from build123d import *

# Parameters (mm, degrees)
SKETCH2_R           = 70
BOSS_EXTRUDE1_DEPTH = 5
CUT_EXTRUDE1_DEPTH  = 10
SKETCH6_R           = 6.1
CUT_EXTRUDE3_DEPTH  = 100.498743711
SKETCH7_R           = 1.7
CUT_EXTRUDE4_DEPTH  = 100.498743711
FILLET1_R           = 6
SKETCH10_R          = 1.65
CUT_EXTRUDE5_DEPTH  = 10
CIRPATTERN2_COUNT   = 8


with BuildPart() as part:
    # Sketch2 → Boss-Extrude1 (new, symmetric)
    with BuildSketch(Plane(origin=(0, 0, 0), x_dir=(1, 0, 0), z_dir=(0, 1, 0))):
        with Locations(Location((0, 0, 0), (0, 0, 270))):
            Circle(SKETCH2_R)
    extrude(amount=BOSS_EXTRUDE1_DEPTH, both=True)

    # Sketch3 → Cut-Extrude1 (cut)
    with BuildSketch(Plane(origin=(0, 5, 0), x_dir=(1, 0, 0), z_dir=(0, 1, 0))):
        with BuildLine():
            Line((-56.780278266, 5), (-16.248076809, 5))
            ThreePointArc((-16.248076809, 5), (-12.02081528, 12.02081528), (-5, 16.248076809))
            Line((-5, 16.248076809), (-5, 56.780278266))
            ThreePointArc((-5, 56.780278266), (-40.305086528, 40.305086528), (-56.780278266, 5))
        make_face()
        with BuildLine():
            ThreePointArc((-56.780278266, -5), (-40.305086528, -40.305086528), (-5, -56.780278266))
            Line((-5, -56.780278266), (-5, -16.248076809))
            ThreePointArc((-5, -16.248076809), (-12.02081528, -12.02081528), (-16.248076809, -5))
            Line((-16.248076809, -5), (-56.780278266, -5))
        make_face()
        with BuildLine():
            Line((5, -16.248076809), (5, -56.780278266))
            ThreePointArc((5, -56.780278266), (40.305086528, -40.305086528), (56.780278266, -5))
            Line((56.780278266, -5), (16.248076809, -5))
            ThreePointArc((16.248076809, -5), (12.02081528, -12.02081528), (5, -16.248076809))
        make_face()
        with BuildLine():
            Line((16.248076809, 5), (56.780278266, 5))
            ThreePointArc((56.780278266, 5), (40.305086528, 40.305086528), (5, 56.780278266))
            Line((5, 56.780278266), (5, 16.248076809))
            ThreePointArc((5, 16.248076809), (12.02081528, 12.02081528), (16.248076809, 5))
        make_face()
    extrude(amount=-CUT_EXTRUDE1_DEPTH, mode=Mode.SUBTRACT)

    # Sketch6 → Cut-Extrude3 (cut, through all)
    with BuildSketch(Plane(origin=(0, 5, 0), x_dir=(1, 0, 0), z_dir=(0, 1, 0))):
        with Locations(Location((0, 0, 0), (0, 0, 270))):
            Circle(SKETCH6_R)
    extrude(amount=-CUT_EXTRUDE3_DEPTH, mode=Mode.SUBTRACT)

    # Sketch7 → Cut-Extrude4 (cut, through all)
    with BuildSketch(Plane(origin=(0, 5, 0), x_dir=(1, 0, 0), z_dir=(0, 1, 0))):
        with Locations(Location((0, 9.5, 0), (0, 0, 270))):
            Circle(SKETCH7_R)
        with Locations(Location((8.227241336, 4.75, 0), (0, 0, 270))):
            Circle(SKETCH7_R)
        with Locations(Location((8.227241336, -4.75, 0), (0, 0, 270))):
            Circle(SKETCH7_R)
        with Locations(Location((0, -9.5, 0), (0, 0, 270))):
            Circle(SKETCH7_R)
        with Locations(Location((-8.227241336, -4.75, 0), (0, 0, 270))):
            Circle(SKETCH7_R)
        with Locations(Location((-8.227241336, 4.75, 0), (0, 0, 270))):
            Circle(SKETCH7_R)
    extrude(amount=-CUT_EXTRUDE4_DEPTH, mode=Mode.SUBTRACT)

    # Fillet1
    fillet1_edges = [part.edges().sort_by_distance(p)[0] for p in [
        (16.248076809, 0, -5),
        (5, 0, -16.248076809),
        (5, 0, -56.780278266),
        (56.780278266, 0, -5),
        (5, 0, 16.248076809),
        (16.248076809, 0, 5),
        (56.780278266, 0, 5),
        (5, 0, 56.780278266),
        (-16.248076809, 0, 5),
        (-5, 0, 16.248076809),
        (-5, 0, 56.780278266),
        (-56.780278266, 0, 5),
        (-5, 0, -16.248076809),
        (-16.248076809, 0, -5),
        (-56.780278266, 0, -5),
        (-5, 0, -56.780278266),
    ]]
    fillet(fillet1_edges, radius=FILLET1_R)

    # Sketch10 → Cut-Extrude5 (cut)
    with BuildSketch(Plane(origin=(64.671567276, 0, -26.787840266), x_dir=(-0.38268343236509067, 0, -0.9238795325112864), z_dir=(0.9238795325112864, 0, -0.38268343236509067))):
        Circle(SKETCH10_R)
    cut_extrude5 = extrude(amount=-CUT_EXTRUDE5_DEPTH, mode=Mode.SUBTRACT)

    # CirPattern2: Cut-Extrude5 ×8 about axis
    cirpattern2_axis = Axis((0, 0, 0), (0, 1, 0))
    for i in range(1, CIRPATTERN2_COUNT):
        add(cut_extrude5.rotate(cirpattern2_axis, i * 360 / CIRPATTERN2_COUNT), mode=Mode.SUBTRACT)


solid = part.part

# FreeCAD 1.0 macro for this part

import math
import FreeCAD as App
import Part
import Sketcher
from FreeCAD import Vector


def edges_at(feature, points):
    """Names of the edges that pass closest to the given points."""
    edges = feature.Shape.Edges
    near = lambda p: min(range(len(edges)), key=lambda i: edges[i].distToShape(Part.Vertex(*p))[0])
    return sorted({f"Edge{near(p) + 1}" for p in points})

doc = App.newDocument("Part")
body = doc.addObject("PartDesign::Body", "Body")

# Sketch on XZ plane
sketch1 = doc.addObject("Sketcher::SketchObject", "Sketch")
body.addObject(sketch1)
sketch1.AttachmentSupport = (doc.XZ_Plane, [""])
sketch1.MapMode = "FlatFace"
sketch1.addGeometry(Part.Circle(Vector(0, 0, 0), Vector(0, 0, 1), 70), False)
sketch1.addConstraint([
    Sketcher.Constraint("Coincident", 0, 3, -1, 1),
    Sketcher.Constraint("Diameter", 0, 140.0),
])
pad1 = doc.addObject("PartDesign::Pad", "Pad")
body.addObject(pad1)
pad1.Profile = sketch1
pad1.Length = 10
pad1.Midplane = True

# Sketch on XZ plane
sketch2 = doc.addObject("Sketcher::SketchObject", "Sketch001")
body.addObject(sketch2)
sketch2.AttachmentSupport = (doc.XZ_Plane, [""])
sketch2.MapMode = "FlatFace"
sketch2.AttachmentOffset = App.Placement(Vector(0, 0, -5), App.Rotation())
sketch2.addGeometry([
    Part.LineSegment(Vector(-56.780278, -5, 0), Vector(-16.248077, -5, 0)),  # 0
    Part.ArcOfCircle(Part.Circle(Vector(0, 0, 0), Vector(0, 0, 1), 17), math.radians(-162.895365), math.radians(-107.104635)),  # 1
    Part.LineSegment(Vector(-5, -16.248077, 0), Vector(-5, -56.780278, 0)),  # 2
    Part.ArcOfCircle(Part.Circle(Vector(0, 0, 0), Vector(0, 0, 1), 57), math.radians(-174.967587), math.radians(-95.032413)),  # 3
    Part.ArcOfCircle(Part.Circle(Vector(0, 0, 0), Vector(0, 0, 1), 57), math.radians(95.032413), math.radians(174.967587)),  # 4
    Part.LineSegment(Vector(-5, 56.780278, 0), Vector(-5, 16.248077, 0)),  # 5
    Part.ArcOfCircle(Part.Circle(Vector(0, 0, 0), Vector(0, 0, 1), 17), math.radians(107.104635), math.radians(162.895365)),  # 6
    Part.LineSegment(Vector(-16.248077, 5, 0), Vector(-56.780278, 5, 0)),  # 7
    Part.LineSegment(Vector(5, 16.248077, 0), Vector(5, 56.780278, 0)),  # 8
    Part.ArcOfCircle(Part.Circle(Vector(0, 0, 0), Vector(0, 0, 1), 57), math.radians(5.032413), math.radians(84.967587)),  # 9
    Part.LineSegment(Vector(56.780278, 5, 0), Vector(16.248077, 5, 0)),  # 10
    Part.ArcOfCircle(Part.Circle(Vector(0, 0, 0), Vector(0, 0, 1), 17), math.radians(17.104635), math.radians(72.895365)),  # 11
    Part.LineSegment(Vector(16.248077, -5, 0), Vector(56.780278, -5, 0)),  # 12
    Part.ArcOfCircle(Part.Circle(Vector(0, 0, 0), Vector(0, 0, 1), 57), math.radians(-84.967587), math.radians(-5.032413)),  # 13
    Part.LineSegment(Vector(5, -56.780278, 0), Vector(5, -16.248077, 0)),  # 14
    Part.ArcOfCircle(Part.Circle(Vector(0, 0, 0), Vector(0, 0, 1), 17), math.radians(-72.895365), math.radians(-17.104635)),  # 15
], False)
sketch2.addConstraint([
    Sketcher.Constraint("Coincident", 0, 2, 1, 1),
    Sketcher.Constraint("Coincident", 1, 2, 2, 1),
    Sketcher.Constraint("Coincident", 2, 2, 3, 2),
    Sketcher.Constraint("Coincident", 3, 1, 0, 1),
    Sketcher.Constraint("Coincident", 4, 1, 5, 1),
    Sketcher.Constraint("Coincident", 5, 2, 6, 1),
    Sketcher.Constraint("Coincident", 6, 2, 7, 1),
    Sketcher.Constraint("Coincident", 7, 2, 4, 2),
    Sketcher.Constraint("Coincident", 8, 2, 9, 2),
    Sketcher.Constraint("Coincident", 9, 1, 10, 1),
    Sketcher.Constraint("Coincident", 10, 2, 11, 1),
    Sketcher.Constraint("Coincident", 11, 2, 8, 1),
    Sketcher.Constraint("Coincident", 12, 2, 13, 2),
    Sketcher.Constraint("Coincident", 13, 1, 14, 1),
    Sketcher.Constraint("Coincident", 14, 2, 15, 1),
    Sketcher.Constraint("Coincident", 15, 2, 12, 1),
    Sketcher.Constraint("Horizontal", 0),
    Sketcher.Constraint("Vertical", 2),
    Sketcher.Constraint("Vertical", 5),
    Sketcher.Constraint("Horizontal", 7),
    Sketcher.Constraint("Vertical", 8),
    Sketcher.Constraint("Horizontal", 10),
    Sketcher.Constraint("Horizontal", 12),
    Sketcher.Constraint("Vertical", 14),
    Sketcher.Constraint("Coincident", 1, 3, -1, 1),
    Sketcher.Constraint("Coincident", 3, 3, -1, 1),
    Sketcher.Constraint("Coincident", 4, 3, -1, 1),
    Sketcher.Constraint("Coincident", 6, 3, -1, 1),
    Sketcher.Constraint("Coincident", 9, 3, -1, 1),
    Sketcher.Constraint("Coincident", 11, 3, -1, 1),
    Sketcher.Constraint("Coincident", 13, 3, -1, 1),
    Sketcher.Constraint("Coincident", 15, 3, -1, 1),
    Sketcher.Constraint("Equal", 3, 4),
    Sketcher.Constraint("Equal", 1, 6),
    Sketcher.Constraint("Equal", 4, 9),
    Sketcher.Constraint("Equal", 6, 11),
    Sketcher.Constraint("Equal", 9, 13),
    Sketcher.Constraint("Equal", 11, 15),
    Sketcher.Constraint("Horizontal", 4, 1, 8, 2),
    Sketcher.Constraint("Horizontal", 7, 2, 9, 1),
    Sketcher.Constraint("Horizontal", 3, 1, 12, 2),
    Sketcher.Constraint("Horizontal", 2, 2, 13, 1),
    Sketcher.Constraint("Vertical", 2, 2, 4, 1),
    Sketcher.Constraint("Vertical", 0, 2, 6, 2),
    Sketcher.Constraint("Equal", 12, 2),
    Sketcher.Constraint("Radius", 1, 17.0),
    Sketcher.Constraint("Radius", 3, 57.0),
    Sketcher.Constraint("DistanceY", 0, 2, -1, 1, 5.0),
])
pocket1 = doc.addObject("PartDesign::Pocket", "Pocket")
body.addObject(pocket1)
pocket1.Profile = sketch2
pocket1.Length = 10
pocket1.Reversed = True

# Sketch on XZ plane
sketch3 = doc.addObject("Sketcher::SketchObject", "Sketch002")
body.addObject(sketch3)
sketch3.AttachmentSupport = (doc.XZ_Plane, [""])
sketch3.MapMode = "FlatFace"
sketch3.AttachmentOffset = App.Placement(Vector(0, 0, -5), App.Rotation())
sketch3.addGeometry(Part.Circle(Vector(0, 0, 0), Vector(0, 0, 1), 6.1), False)
sketch3.addConstraint([
    Sketcher.Constraint("Coincident", 0, 3, -1, 1),
    Sketcher.Constraint("Diameter", 0, 12.2),
])
pocket2 = doc.addObject("PartDesign::Pocket", "Pocket001")
body.addObject(pocket2)
pocket2.Profile = sketch3
pocket2.Type = "ThroughAll"
pocket2.Reversed = True

# Sketch on XZ plane
sketch4 = doc.addObject("Sketcher::SketchObject", "Sketch003")
body.addObject(sketch4)
sketch4.AttachmentSupport = (doc.XZ_Plane, [""])
sketch4.MapMode = "FlatFace"
sketch4.AttachmentOffset = App.Placement(Vector(0, 0, -5), App.Rotation())
sketch4.addGeometry([
    Part.Circle(Vector(0, -9.5, 0), Vector(0, 0, 1), 1.7),  # 0
    Part.Circle(Vector(8.227241, -4.75, 0), Vector(0, 0, 1), 1.7),  # 1
    Part.Circle(Vector(8.227241, 4.75, 0), Vector(0, 0, 1), 1.7),  # 2
    Part.Circle(Vector(0, 9.5, 0), Vector(0, 0, 1), 1.7),  # 3
    Part.Circle(Vector(-8.227241, 4.75, 0), Vector(0, 0, 1), 1.7),  # 4
    Part.Circle(Vector(-8.227241, -4.75, 0), Vector(0, 0, 1), 1.7),  # 5
], False)
sketch4.addConstraint([
    Sketcher.Constraint("Equal", 0, 1),
    Sketcher.Constraint("Equal", 1, 2),
    Sketcher.Constraint("Equal", 2, 3),
    Sketcher.Constraint("Equal", 3, 4),
    Sketcher.Constraint("Equal", 4, 5),
    Sketcher.Constraint("Symmetric", 0, 3, 3, 3, -1, 1),
    Sketcher.Constraint("Symmetric", 1, 3, 4, 3, -1, 1),
    Sketcher.Constraint("Symmetric", 2, 3, 5, 3, -1, 1),
    Sketcher.Constraint("Symmetric", 2, 3, 4, 3, -2),
    Sketcher.Constraint("PointOnObject", 0, 3, -2),
    Sketcher.Constraint("Diameter", 0, 3.4),
    Sketcher.Constraint("DistanceY", 0, 3, 3, 3, 19.0),
    Sketcher.Constraint("DistanceY", 1, 3, 2, 3, 9.5),
    Sketcher.Constraint("DistanceX", -1, 1, 1, 3, 8.227241),
])
pocket3 = doc.addObject("PartDesign::Pocket", "Pocket002")
body.addObject(pocket3)
pocket3.Profile = sketch4
pocket3.Type = "ThroughAll"
pocket3.Reversed = True
doc.recompute()

fillet = doc.addObject("PartDesign::Fillet", "Fillet")
body.addObject(fillet)
fillet.Base = (pocket3, edges_at(pocket3, [
    (16.248, 0, -5),
    (5, 0, -16.248),
    (5, 0, -56.78),
    (56.78, 0, -5),
    (5, 0, 16.248),
    (16.248, 0, 5),
    (56.78, 0, 5),
    (5, 0, 56.78),
    (-16.248, 0, 5),
    (-5, 0, 16.248),
    (-5, 0, 56.78),
    (-56.78, 0, 5),
    (-5, 0, -16.248),
    (-16.248, 0, -5),
    (-56.78, 0, -5),
    (-5, 0, -56.78),
]))
fillet.Radius = 6

# Sketch on an angled plane
sketch5 = doc.addObject("Sketcher::SketchObject", "Sketch004")
body.addObject(sketch5)
sketch5.Placement = App.Placement(Vector(64.671567, 0, -26.78784), App.Rotation(Vector(-0.382683432, 0, -0.923879533), Vector(0, 1.000000001, 0), Vector(0.923879533, 0, -0.382683432), "ZXY"))
sketch5.addGeometry(Part.Circle(Vector(0, 0, 0), Vector(0, 0, 1), 1.65), False)
sketch5.addConstraint([
    Sketcher.Constraint("Coincident", 0, 3, -1, 1),
    Sketcher.Constraint("Diameter", 0, 3.3),
])
pocket4 = doc.addObject("PartDesign::Pocket", "Pocket003")
body.addObject(pocket4)
pocket4.Profile = sketch5
pocket4.Length = 10
doc.recompute()

polarpattern = doc.addObject("PartDesign::PolarPattern", "PolarPattern")
body.addObject(polarpattern)
polarpattern.Originals = [pocket4]
polarpattern.Axis = (doc.Y_Axis, [""])
polarpattern.Angle = 360
polarpattern.Occurrences = 8
body.Tip = polarpattern

doc.recompute()
